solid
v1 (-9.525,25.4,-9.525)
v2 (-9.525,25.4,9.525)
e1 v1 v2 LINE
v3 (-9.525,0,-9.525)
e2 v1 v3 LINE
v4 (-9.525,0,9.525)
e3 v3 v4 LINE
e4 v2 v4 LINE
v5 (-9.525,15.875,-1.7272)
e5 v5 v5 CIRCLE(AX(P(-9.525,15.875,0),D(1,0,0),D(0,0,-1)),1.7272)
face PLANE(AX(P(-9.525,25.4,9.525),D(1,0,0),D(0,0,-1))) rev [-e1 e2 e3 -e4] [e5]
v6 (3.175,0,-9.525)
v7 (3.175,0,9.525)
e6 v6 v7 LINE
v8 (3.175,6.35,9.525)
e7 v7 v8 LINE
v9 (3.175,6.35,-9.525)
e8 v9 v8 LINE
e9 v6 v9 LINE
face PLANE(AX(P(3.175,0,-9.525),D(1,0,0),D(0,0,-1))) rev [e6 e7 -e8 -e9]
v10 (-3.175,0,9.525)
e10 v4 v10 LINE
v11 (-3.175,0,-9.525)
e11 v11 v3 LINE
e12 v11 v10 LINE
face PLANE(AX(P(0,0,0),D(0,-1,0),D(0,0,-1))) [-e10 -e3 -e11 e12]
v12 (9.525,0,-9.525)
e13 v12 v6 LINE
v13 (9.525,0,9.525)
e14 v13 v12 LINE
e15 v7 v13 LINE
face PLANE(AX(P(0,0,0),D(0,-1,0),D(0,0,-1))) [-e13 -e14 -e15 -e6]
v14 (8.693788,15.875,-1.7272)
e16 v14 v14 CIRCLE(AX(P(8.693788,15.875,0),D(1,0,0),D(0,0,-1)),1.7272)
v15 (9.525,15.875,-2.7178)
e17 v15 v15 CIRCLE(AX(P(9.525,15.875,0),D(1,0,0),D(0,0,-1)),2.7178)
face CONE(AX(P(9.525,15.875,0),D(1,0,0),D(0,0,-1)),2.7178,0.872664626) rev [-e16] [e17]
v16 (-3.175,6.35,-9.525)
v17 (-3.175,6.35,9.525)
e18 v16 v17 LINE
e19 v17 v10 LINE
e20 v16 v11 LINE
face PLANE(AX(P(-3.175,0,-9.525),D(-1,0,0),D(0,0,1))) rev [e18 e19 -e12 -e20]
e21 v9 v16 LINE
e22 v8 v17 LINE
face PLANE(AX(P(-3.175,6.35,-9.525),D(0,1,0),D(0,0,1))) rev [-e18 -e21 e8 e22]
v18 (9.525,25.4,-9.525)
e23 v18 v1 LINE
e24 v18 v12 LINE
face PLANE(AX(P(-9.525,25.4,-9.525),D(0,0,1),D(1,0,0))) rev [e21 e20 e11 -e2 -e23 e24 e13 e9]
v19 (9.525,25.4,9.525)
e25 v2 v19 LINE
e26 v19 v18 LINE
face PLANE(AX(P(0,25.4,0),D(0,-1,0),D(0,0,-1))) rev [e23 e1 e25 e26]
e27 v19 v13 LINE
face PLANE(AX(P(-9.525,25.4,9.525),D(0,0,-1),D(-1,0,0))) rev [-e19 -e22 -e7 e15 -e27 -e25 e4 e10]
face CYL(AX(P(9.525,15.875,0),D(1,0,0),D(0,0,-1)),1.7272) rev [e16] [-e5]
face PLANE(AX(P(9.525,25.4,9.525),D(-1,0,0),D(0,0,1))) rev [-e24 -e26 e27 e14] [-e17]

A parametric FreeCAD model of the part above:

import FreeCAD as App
import Part
import Sketcher
Q = App.Units.Quantity


def add_polygon(sketch, points):
    """Adds a closed chain of lines whose ends are joined by coincident constraints."""
    first, n = sketch.GeometryCount, len(points)
    for a, b in zip(points, points[1:] + points[:1]):
        sketch.addGeometry(Part.LineSegment(App.Vector(*a, 0), App.Vector(*b, 0)), False)
    for i in range(n):
        sketch.addConstraint(Sketcher.Constraint("Coincident", first + i, 2, first + (i + 1) % n, 1))

doc = App.newDocument("Part")
params = doc.addObject("Spreadsheet::Sheet", "Params")
for row, (alias, value) in enumerate([
    ("sketch1_width", "0.75 in"),
    ("pad1_length", "1 in"),
    ("sketch2_width", "0.25 in"),
    ("sketch3_diameter", "0.136 in"),
    ("hole_diameter", "0.136 in"),
    ("hole_csink_diameter", "0.214 in"),
], start=1):
    params.set(f"A{row}", alias)
    params.set(f"B{row}", "=" + value)
    params.setAlias(f"B{row}", alias)

body = doc.addObject("PartDesign::Body", "Body")

# Sketch on XZ plane
sketch1 = doc.addObject("Sketcher::SketchObject", "Sketch")
body.addObject(sketch1)
sketch1.AttachmentSupport = (doc.XZ_Plane, [""])
sketch1.MapMode = "FlatFace"
add_polygon(sketch1, [(-10, -10), (-10, 10), (10, 10), (10, -10)])  # lines 0-3
sketch1.addConstraint(Sketcher.Constraint("Vertical", 0))
sketch1.addConstraint(Sketcher.Constraint("Horizontal", 1))
sketch1.addConstraint(Sketcher.Constraint("Vertical", 2))
sketch1.addConstraint(Sketcher.Constraint("Horizontal", 3))
sketch1.addConstraint(Sketcher.Constraint("Symmetric", 0, 2, 2, 2, -1, 1))
sketch1.addConstraint(Sketcher.Constraint("Equal", 3, 0))
sketch1.addConstraint(Sketcher.Constraint("DistanceX", 1, 1, 1, 2, Q("0.75 in")))
sketch1.setExpression("Constraints[10]", "Params.sketch1_width")
pad1 = doc.addObject("PartDesign::Pad", "Pad")
body.addObject(pad1)
pad1.Profile = sketch1
pad1.setExpression("Length", "Params.pad1_length")
pad1.Reversed = True

# Sketch on XY plane
sketch2 = doc.addObject("Sketcher::SketchObject", "Sketch001")
body.addObject(sketch2)
sketch2.AttachmentSupport = (doc.XY_Plane, [""])
sketch2.MapMode = "FlatFace"
sketch2.AttachmentOffset = App.Placement(App.Vector(0, 0, 0.375 * 25.4), App.Rotation())
add_polygon(sketch2, [(-3, 6), (-3, 0), (3, 0), (3, 6)])  # lines 0-3
sketch2.addConstraint(Sketcher.Constraint("Vertical", 0))
sketch2.addConstraint(Sketcher.Constraint("Horizontal", 1))
sketch2.addConstraint(Sketcher.Constraint("Vertical", 2))
sketch2.addConstraint(Sketcher.Constraint("Horizontal", 3))
sketch2.addConstraint(Sketcher.Constraint("Symmetric", 0, 2, 1, 2, -1, 1))
sketch2.addConstraint(Sketcher.Constraint("Equal", 3, 0))
sketch2.addConstraint(Sketcher.Constraint("DistanceX", 1, 1, 1, 2, Q("0.25 in")))
sketch2.setExpression("Constraints[10]", "Params.sketch2_width")
pocket1 = doc.addObject("PartDesign::Pocket", "Pocket")
body.addObject(pocket1)
pocket1.Profile = sketch2
pocket1.Type = "ThroughAll"

# Sketch on YZ plane
sketch3 = doc.addObject("Sketcher::SketchObject", "Sketch002")
body.addObject(sketch3)
sketch3.AttachmentSupport = (doc.YZ_Plane, [""])
sketch3.MapMode = "FlatFace"
sketch3.AttachmentOffset = App.Placement(App.Vector(0, 0, 0.375 * 25.4), App.Rotation())
sketch3.addGeometry(Part.Circle(App.Vector(15.9, 0, 0), App.Vector(0, 0, 1), 1.7), False)
sketch3.addConstraint(Sketcher.Constraint("PointOnObject", 0, 3, -1))
sketch3.addConstraint(Sketcher.Constraint("Diameter", 0, Q("0.136 in")))
sketch3.addConstraint(Sketcher.Constraint("DistanceX", -1, 1, 0, 3, Q("0.625 in")))
sketch3.setExpression("Constraints[1]", "Params.sketch3_diameter")
doc.recompute()
hole = doc.addObject("PartDesign::Hole", "Hole")
body.addObject(hole)
hole.Profile = sketch3
hole.ThreadType = "None"
hole.setExpression("Diameter", "Params.hole_diameter")
hole.DepthType = "ThroughAll"
hole.HoleCutType = "Countersink"
hole.setExpression("HoleCutDiameter", "Params.hole_csink_diameter")
hole.HoleCutCountersinkAngle = 100

doc.recompute()
